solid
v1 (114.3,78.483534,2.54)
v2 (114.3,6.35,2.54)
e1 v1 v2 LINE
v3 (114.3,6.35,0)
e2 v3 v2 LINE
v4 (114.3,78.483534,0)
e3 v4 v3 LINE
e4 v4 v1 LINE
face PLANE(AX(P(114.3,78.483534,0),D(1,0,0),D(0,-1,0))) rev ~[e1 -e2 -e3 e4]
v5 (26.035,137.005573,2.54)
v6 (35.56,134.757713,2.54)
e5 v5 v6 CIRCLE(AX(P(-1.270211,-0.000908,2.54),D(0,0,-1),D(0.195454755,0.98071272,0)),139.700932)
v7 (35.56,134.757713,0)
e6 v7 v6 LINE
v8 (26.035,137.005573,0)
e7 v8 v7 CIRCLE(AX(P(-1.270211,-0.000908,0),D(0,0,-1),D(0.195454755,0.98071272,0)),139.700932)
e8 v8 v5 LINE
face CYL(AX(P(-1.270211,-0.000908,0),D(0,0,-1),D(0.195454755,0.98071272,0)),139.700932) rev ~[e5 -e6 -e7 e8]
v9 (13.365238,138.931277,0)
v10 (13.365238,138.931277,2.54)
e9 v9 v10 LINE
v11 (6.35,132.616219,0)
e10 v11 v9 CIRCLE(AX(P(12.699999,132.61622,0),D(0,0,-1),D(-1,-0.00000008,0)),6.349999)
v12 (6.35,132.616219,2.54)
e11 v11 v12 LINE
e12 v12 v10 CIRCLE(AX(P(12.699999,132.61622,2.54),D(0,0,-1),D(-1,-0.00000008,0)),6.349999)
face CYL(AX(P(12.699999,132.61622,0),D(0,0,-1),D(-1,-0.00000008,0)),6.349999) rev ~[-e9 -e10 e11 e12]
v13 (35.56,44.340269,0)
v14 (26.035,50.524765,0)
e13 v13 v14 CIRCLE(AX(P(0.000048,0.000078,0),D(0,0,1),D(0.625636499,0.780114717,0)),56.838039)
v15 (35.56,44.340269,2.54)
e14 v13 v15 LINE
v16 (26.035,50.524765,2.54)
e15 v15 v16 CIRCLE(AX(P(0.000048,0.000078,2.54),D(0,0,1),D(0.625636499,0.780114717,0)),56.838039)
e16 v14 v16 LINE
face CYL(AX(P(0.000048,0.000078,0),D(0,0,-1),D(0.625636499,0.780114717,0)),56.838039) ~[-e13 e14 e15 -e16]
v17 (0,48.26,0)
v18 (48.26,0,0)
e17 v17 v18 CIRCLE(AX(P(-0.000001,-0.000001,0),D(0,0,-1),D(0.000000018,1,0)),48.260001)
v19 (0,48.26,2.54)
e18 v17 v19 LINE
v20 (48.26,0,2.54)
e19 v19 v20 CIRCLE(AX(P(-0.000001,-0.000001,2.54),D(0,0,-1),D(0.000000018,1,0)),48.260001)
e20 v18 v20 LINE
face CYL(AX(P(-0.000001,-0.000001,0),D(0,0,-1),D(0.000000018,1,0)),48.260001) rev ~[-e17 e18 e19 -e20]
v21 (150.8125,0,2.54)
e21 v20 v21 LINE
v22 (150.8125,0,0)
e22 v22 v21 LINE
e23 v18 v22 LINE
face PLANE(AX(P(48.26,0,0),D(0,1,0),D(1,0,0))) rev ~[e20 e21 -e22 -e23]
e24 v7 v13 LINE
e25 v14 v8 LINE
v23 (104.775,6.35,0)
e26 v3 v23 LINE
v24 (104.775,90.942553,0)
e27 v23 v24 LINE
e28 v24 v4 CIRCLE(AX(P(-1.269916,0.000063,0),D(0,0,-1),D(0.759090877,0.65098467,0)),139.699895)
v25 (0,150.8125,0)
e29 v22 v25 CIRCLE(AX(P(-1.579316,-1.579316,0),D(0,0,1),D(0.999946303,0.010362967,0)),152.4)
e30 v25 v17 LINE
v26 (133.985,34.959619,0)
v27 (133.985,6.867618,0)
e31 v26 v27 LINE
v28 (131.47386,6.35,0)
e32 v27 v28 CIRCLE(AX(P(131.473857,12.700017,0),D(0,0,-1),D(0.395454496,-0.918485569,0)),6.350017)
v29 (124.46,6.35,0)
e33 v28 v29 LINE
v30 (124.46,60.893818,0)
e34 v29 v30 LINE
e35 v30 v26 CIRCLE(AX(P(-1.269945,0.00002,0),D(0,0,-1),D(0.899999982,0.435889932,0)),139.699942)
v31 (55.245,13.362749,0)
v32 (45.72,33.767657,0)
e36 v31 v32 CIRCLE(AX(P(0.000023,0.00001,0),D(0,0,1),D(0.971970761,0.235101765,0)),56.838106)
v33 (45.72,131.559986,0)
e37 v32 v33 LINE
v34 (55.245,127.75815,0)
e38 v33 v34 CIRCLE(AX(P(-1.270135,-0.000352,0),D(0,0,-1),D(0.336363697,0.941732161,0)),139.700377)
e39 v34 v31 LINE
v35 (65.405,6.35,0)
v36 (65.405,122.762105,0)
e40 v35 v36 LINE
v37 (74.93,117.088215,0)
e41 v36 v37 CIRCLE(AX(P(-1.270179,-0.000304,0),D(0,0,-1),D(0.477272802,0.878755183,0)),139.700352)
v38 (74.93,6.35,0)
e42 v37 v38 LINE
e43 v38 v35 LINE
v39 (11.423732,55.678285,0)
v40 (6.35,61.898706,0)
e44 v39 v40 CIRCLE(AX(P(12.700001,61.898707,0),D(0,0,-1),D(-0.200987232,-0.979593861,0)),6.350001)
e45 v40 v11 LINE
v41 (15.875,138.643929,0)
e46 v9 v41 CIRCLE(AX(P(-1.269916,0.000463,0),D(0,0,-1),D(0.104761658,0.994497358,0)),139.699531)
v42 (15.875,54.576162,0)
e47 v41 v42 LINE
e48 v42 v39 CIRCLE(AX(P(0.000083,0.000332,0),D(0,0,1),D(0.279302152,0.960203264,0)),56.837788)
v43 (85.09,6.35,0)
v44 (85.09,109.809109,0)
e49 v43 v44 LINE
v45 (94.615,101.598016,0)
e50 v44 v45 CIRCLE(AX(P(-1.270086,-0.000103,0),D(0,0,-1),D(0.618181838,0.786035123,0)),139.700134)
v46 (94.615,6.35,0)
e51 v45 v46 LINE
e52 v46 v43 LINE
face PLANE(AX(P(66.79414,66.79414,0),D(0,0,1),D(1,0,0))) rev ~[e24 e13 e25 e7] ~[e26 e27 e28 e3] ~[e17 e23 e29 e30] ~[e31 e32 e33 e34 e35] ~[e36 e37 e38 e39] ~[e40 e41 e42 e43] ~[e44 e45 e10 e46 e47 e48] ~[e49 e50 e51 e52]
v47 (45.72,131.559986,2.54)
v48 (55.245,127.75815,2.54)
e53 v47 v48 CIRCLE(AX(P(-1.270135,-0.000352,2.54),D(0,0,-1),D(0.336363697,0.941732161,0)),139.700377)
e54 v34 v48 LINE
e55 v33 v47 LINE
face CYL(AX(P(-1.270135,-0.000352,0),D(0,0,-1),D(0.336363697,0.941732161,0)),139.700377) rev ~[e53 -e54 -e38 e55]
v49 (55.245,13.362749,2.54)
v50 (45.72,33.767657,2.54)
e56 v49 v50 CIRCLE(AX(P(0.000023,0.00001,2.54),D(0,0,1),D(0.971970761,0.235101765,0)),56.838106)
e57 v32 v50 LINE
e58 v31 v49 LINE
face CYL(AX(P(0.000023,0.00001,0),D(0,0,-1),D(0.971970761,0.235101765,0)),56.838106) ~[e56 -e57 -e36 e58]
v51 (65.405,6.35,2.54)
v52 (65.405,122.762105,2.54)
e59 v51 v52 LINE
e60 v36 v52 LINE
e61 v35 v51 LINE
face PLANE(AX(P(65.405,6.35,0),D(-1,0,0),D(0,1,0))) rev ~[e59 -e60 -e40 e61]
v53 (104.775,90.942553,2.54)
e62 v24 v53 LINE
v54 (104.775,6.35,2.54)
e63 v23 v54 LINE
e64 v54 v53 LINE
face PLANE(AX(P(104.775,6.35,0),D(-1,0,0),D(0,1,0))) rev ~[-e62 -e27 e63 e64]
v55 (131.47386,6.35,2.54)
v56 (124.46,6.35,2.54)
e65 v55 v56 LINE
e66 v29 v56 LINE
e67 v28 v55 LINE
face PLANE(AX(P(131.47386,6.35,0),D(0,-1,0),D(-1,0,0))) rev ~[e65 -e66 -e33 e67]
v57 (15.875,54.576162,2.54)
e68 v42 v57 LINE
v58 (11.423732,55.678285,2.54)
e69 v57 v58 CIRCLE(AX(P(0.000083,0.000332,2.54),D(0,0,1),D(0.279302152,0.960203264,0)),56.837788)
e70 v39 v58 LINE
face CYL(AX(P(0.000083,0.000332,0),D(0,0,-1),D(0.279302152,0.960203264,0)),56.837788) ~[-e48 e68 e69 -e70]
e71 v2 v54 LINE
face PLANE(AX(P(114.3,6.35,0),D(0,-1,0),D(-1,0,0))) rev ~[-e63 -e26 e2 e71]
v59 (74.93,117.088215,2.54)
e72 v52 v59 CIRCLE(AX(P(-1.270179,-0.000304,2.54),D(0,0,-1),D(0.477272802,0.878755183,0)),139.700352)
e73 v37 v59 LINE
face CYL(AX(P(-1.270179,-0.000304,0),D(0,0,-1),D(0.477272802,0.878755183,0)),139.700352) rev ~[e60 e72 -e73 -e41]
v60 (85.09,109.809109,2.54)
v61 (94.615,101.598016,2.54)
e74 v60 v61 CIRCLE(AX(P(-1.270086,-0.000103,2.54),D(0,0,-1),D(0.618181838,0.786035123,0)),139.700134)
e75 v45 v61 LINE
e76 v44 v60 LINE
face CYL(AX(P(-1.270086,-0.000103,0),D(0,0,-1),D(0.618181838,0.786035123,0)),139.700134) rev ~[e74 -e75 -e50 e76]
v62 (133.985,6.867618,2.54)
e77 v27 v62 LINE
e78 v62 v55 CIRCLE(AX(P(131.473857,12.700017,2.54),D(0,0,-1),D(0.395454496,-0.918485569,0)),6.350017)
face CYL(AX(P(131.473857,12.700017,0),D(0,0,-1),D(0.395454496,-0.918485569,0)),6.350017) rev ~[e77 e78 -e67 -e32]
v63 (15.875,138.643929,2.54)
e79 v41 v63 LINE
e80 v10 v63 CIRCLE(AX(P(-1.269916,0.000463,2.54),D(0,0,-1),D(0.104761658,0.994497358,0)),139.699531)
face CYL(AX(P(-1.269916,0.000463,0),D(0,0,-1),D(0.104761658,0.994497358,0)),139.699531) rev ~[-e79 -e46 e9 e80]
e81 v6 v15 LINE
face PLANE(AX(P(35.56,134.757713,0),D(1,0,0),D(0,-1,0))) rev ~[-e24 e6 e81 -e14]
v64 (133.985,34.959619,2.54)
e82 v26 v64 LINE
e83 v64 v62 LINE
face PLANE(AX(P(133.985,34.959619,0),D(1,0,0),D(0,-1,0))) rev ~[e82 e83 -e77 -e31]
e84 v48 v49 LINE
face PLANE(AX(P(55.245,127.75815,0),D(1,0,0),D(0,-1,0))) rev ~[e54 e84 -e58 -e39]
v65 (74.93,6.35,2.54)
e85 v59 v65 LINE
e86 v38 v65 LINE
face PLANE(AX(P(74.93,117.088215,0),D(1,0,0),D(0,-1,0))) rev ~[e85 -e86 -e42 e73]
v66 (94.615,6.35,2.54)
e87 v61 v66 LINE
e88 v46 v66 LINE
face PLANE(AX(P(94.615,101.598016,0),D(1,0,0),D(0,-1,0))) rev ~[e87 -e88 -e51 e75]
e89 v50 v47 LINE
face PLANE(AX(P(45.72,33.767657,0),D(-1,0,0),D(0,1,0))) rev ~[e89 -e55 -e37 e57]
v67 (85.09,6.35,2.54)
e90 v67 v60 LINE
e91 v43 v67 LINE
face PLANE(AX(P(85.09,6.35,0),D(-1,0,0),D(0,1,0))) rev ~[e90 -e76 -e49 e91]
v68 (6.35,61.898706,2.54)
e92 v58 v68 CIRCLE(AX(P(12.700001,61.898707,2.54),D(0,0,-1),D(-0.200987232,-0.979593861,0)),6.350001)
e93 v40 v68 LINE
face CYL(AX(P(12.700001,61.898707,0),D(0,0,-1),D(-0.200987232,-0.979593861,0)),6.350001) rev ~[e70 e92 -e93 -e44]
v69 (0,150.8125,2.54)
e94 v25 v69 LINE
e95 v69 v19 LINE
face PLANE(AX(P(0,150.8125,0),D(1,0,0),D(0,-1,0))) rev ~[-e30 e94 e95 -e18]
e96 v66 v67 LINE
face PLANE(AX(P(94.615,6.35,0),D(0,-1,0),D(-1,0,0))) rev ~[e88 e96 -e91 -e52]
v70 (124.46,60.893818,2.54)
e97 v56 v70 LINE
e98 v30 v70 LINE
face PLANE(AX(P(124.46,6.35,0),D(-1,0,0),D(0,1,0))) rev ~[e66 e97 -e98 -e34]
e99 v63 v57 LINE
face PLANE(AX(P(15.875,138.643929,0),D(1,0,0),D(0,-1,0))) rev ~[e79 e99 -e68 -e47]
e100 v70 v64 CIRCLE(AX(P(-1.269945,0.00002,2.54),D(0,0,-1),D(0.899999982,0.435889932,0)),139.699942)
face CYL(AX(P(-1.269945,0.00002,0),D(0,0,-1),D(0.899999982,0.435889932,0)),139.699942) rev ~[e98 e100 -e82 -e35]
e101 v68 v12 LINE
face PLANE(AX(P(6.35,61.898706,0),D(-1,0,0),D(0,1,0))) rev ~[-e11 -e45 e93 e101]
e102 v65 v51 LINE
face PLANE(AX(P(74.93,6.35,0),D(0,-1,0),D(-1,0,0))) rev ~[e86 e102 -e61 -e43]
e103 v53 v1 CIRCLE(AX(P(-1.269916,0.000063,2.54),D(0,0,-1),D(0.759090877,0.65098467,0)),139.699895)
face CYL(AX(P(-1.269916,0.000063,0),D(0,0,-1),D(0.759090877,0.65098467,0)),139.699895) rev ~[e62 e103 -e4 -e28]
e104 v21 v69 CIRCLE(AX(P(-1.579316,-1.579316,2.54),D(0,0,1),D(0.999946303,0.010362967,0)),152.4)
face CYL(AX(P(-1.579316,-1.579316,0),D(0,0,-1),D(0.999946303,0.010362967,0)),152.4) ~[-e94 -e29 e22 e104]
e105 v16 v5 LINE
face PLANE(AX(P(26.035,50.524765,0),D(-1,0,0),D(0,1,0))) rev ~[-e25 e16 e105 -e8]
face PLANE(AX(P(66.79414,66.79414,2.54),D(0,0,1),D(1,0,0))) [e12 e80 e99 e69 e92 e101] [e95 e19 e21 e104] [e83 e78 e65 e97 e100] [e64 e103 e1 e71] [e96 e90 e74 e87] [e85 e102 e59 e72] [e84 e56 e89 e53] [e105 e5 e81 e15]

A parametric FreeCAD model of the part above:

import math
import FreeCAD as App
import Part
import Sketcher

V = App.Vector
Q = App.Units.Quantity

doc = App.newDocument("Part")
body = doc.addObject("PartDesign::Body", "Body")

sketch1 = body.newObject("Sketcher::SketchObject", "Sketch")
sketch1.AttachmentSupport = (doc.getObject("XY_Plane"), [""])
sketch1.MapMode = "FlatFace"
sketch1.addGeometry(Part.ArcOfCircle(Part.Circle(V(-0.000001, -0.000001, 0), V(0, 0, 1), 48.260001), math.radians(0.000001), math.radians(89.999999)), False)
sketch1.addGeometry(Part.LineSegment(V(48.26, 0, 0), V(150.8125, 0, 0)), False)
sketch1.addGeometry(Part.ArcOfCircle(Part.Circle(V(-1.579316, -1.579316, 0), V(0, 0, 1), 152.4), math.radians(0.593765), math.radians(89.406235)), False)
sketch1.addGeometry(Part.LineSegment(V(0, 150.8125, 0), V(0, 48.26, 0)), False)
sketch1.addGeometry(Part.ArcOfCircle(Part.Circle(V(-1.270135, -0.000352, 0), V(0, 0, 1), 139.700377), math.radians(66.137362), math.radians(70.344515)), False)
sketch1.addGeometry(Part.LineSegment(V(55.245, 127.75815, 0), V(55.245, 13.362749, 0)), False)
sketch1.addGeometry(Part.ArcOfCircle(Part.Circle(V(0.000023, 0.00001, 0), V(0, 0, 1), 56.838106), math.radians(13.597622), math.radians(36.44866)), False)
sketch1.addGeometry(Part.LineSegment(V(45.72, 33.767657, 0), V(45.72, 131.559986, 0)), False)
sketch1.addGeometry(Part.LineSegment(V(124.46, 6.35, 0), V(124.46, 60.893818, 0)), False)
sketch1.addGeometry(Part.ArcOfCircle(Part.Circle(V(-1.269945, 0.00002, 0), V(0, 0, 1), 139.699942), math.radians(14.492174), math.radians(25.841935)), False)
sketch1.addGeometry(Part.LineSegment(V(133.985, 34.959619, 0), V(133.985, 6.867618, 0)), False)
sketch1.addGeometry(Part.ArcOfCircle(Part.Circle(V(131.473857, 12.700017, 0), V(0, 0, 1), 6.350017), math.radians(-89.999976), math.radians(-66.705677)), False)
sketch1.addGeometry(Part.LineSegment(V(131.47386, 6.35, 0), V(124.46, 6.35, 0)), False)
sketch1.addGeometry(Part.LineSegment(V(74.93, 117.088215, 0), V(74.93, 6.35, 0)), False)
sketch1.addGeometry(Part.LineSegment(V(74.93, 6.35, 0), V(65.405, 6.35, 0)), False)
sketch1.addGeometry(Part.LineSegment(V(65.405, 6.35, 0), V(65.405, 122.762105, 0)), False)
sketch1.addGeometry(Part.ArcOfCircle(Part.Circle(V(-1.270179, -0.000304, 0), V(0, 0, 1), 139.700352), math.radians(56.944275), math.radians(61.492565)), False)
sketch1.addGeometry(Part.LineSegment(V(94.615, 101.598016, 0), V(94.615, 6.35, 0)), False)
sketch1.addGeometry(Part.LineSegment(V(94.615, 6.35, 0), V(85.09, 6.35, 0)), False)
sketch1.addGeometry(Part.LineSegment(V(85.09, 6.35, 0), V(85.09, 109.809109, 0)), False)
sketch1.addGeometry(Part.ArcOfCircle(Part.Circle(V(-1.270086, -0.000103, 0), V(0, 0, 1), 139.700134), math.radians(46.65706), math.radians(51.816516)), False)
sketch1.addGeometry(Part.LineSegment(V(114.3, 6.35, 0), V(104.775, 6.35, 0)), False)
sketch1.addGeometry(Part.LineSegment(V(104.775, 6.35, 0), V(104.775, 90.942553, 0)), False)
sketch1.addGeometry(Part.ArcOfCircle(Part.Circle(V(-1.269916, 0.000063, 0), V(0, 0, 1), 139.699895), math.radians(34.180406), math.radians(40.615883)), False)
sketch1.addGeometry(Part.LineSegment(V(114.3, 78.483534, 0), V(114.3, 6.35, 0)), False)
sketch1.addGeometry(Part.ArcOfCircle(Part.Circle(V(0.000083, 0.000332, 0), V(0, 0, 1), 56.837788), math.radians(73.781441), math.radians(78.405326)), False)
sketch1.addGeometry(Part.ArcOfCircle(Part.Circle(V(12.700001, 61.898707, 0), V(0, 0, 1), 6.350001), math.radians(-179.99999), math.radians(-101.594696)), False)
sketch1.addGeometry(Part.LineSegment(V(6.35, 61.898706, 0), V(6.35, 132.616219, 0)), False)
sketch1.addGeometry(Part.ArcOfCircle(Part.Circle(V(12.699999, 132.61622, 0), V(0, 0, 1), 6.349999), math.radians(83.986547), math.radians(180.000005)), False)
sketch1.addGeometry(Part.ArcOfCircle(Part.Circle(V(-1.269916, 0.000463, 0), V(0, 0, 1), 139.699531), math.radians(82.950483), math.radians(83.986565)), False)
sketch1.addGeometry(Part.LineSegment(V(15.875, 138.643929, 0), V(15.875, 54.576162, 0)), False)
sketch1.addGeometry(Part.LineSegment(V(35.56, 134.757713, 0), V(35.56, 44.340269, 0)), False)
sketch1.addGeometry(Part.ArcOfCircle(Part.Circle(V(0.000048, 0.000078, 0), V(0, 0, 1), 56.838039), math.radians(51.27108), math.radians(62.738325)), False)
sketch1.addGeometry(Part.LineSegment(V(26.035, 50.524765, 0), V(26.035, 137.005573, 0)), False)
sketch1.addGeometry(Part.ArcOfCircle(Part.Circle(V(-1.270211, -0.000908, 0), V(0, 0, 1), 139.700932), math.radians(74.714074), math.radians(78.72871)), False)
sketch1.addConstraint(Sketcher.Constraint("Coincident", 0, 1, 1, 1))
sketch1.addConstraint(Sketcher.Constraint("Coincident", 1, 2, 2, 1))
sketch1.addConstraint(Sketcher.Constraint("Coincident", 2, 2, 3, 1))
sketch1.addConstraint(Sketcher.Constraint("Coincident", 3, 2, 0, 2))
sketch1.addConstraint(Sketcher.Constraint("Coincident", 4, 1, 5, 1))
sketch1.addConstraint(Sketcher.Constraint("Coincident", 5, 2, 6, 1))
sketch1.addConstraint(Sketcher.Constraint("Coincident", 6, 2, 7, 1))
sketch1.addConstraint(Sketcher.Constraint("Coincident", 7, 2, 4, 2))
sketch1.addConstraint(Sketcher.Constraint("Coincident", 8, 2, 9, 2))
sketch1.addConstraint(Sketcher.Constraint("Coincident", 9, 1, 10, 1))
sketch1.addConstraint(Sketcher.Constraint("Coincident", 10, 2, 11, 2))
sketch1.addConstraint(Sketcher.Constraint("Tangent", 11, 1, 12, 1))
sketch1.addConstraint(Sketcher.Constraint("Coincident", 12, 2, 8, 1))
sketch1.addConstraint(Sketcher.Constraint("Coincident", 13, 2, 14, 1))
sketch1.addConstraint(Sketcher.Constraint("Coincident", 14, 2, 15, 1))
sketch1.addConstraint(Sketcher.Constraint("Coincident", 15, 2, 16, 2))
sketch1.addConstraint(Sketcher.Constraint("Coincident", 16, 1, 13, 1))
sketch1.addConstraint(Sketcher.Constraint("Coincident", 17, 2, 18, 1))
sketch1.addConstraint(Sketcher.Constraint("Coincident", 18, 2, 19, 1))
sketch1.addConstraint(Sketcher.Constraint("Coincident", 19, 2, 20, 2))
sketch1.addConstraint(Sketcher.Constraint("Coincident", 20, 1, 17, 1))
sketch1.addConstraint(Sketcher.Constraint("Coincident", 21, 2, 22, 1))
sketch1.addConstraint(Sketcher.Constraint("Coincident", 22, 2, 23, 2))
sketch1.addConstraint(Sketcher.Constraint("Coincident", 23, 1, 24, 1))
sketch1.addConstraint(Sketcher.Constraint("Coincident", 24, 2, 21, 1))
sketch1.addConstraint(Sketcher.Constraint("Tangent", 25, 2, 26, 2))
sketch1.addConstraint(Sketcher.Constraint("Tangent", 26, 1, 27, 1))
sketch1.addConstraint(Sketcher.Constraint("Tangent", 27, 2, 28, 2))
sketch1.addConstraint(Sketcher.Constraint("Tangent", 28, 1, 29, 2))
sketch1.addConstraint(Sketcher.Constraint("Coincident", 29, 1, 30, 1))
sketch1.addConstraint(Sketcher.Constraint("Coincident", 30, 2, 25, 1))
sketch1.addConstraint(Sketcher.Constraint("Coincident", 31, 2, 32, 1))
sketch1.addConstraint(Sketcher.Constraint("Coincident", 32, 2, 33, 1))
sketch1.addConstraint(Sketcher.Constraint("Coincident", 33, 2, 34, 2))
sketch1.addConstraint(Sketcher.Constraint("Coincident", 34, 1, 31, 1))
sketch1.addConstraint(Sketcher.Constraint("Horizontal", 1))
sketch1.addConstraint(Sketcher.Constraint("Vertical", 3))
sketch1.addConstraint(Sketcher.Constraint("Vertical", 5))
sketch1.addConstraint(Sketcher.Constraint("Vertical", 7))
sketch1.addConstraint(Sketcher.Constraint("Vertical", 8))
sketch1.addConstraint(Sketcher.Constraint("Vertical", 10))
sketch1.addConstraint(Sketcher.Constraint("Horizontal", 12))
sketch1.addConstraint(Sketcher.Constraint("Vertical", 13))
sketch1.addConstraint(Sketcher.Constraint("Horizontal", 14))
sketch1.addConstraint(Sketcher.Constraint("Vertical", 15))
sketch1.addConstraint(Sketcher.Constraint("Vertical", 17))
sketch1.addConstraint(Sketcher.Constraint("Horizontal", 18))
sketch1.addConstraint(Sketcher.Constraint("Vertical", 19))
sketch1.addConstraint(Sketcher.Constraint("Horizontal", 21))
sketch1.addConstraint(Sketcher.Constraint("Vertical", 22))
sketch1.addConstraint(Sketcher.Constraint("Vertical", 24))
sketch1.addConstraint(Sketcher.Constraint("Vertical", 27))
sketch1.addConstraint(Sketcher.Constraint("Vertical", 30))
sketch1.addConstraint(Sketcher.Constraint("Vertical", 31))
sketch1.addConstraint(Sketcher.Constraint("Vertical", 33))
sketch1.addConstraint(Sketcher.Constraint("Coincident", 0, 3, -1, 1))
sketch1.addConstraint(Sketcher.Constraint("Equal", 26, 28))
sketch1.addConstraint(Sketcher.Constraint("PointOnObject", 0, 1, -1))
sketch1.addConstraint(Sketcher.Constraint("PointOnObject", 2, 2, -2))
sketch1.addConstraint(Sketcher.Constraint("Horizontal", 12, 2, 13, 2))
sketch1.addConstraint(Sketcher.Constraint("Horizontal", 14, 2, 17, 2))
sketch1.addConstraint(Sketcher.Constraint("Horizontal", 18, 2, 21, 2))
sketch1.addConstraint(Sketcher.Constraint("Vertical", 23, 3, 29, 3))
sketch1.addConstraint(Sketcher.Constraint("Equal", 14, 18))
sketch1.addConstraint(Sketcher.Constraint("Equal", 18, 21))
sketch1.addConstraint(Sketcher.Constraint("Equal", 1, 3))
sketch1.addConstraint(Sketcher.Constraint("Radius", 2, Q("6 in")))
sketch1.addConstraint(Sketcher.Constraint("Radius", 0, Q("1.9 in")))
sketch1.addConstraint(Sketcher.Constraint("Radius", 26, Q("0.25 in")))
sketch1.addConstraint(Sketcher.Constraint("DistanceX", -1, 1, 26, 3, Q("0.5 in")))
sketch1.addConstraint(Sketcher.Constraint("DistanceX", -1, 1, 6, 2, Q("1.8 in")))
sketch1.addConstraint(Sketcher.Constraint("DistanceX", -1, 1, 8, 2, Q("4.9 in")))
sketch1.addConstraint(Sketcher.Constraint("DistanceX", -1, 1, 23, 1, Q("4.5 in")))
sketch1.addConstraint(Sketcher.Constraint("DistanceX", -1, 1, 31, 2, Q("1.4 in")))
sketch1.addConstraint(Sketcher.Constraint("DistanceY", 9, 3, 11, 3, Q("0.4999999 in")))
sketch1.addConstraint(Sketcher.Constraint("DistanceX", 5, 2, 9, 1, Q("3.1 in")))
sketch1.addConstraint(Sketcher.Constraint("DistanceX", 5, 2, 14, 2, Q("0.4 in")))
sketch1.addConstraint(Sketcher.Constraint("DistanceX", 13, 2, 18, 2, Q("0.4 in")))
sketch1.addConstraint(Sketcher.Constraint("DistanceX", 17, 2, 21, 2, Q("0.4 in")))
sketch1.addConstraint(Sketcher.Constraint("DistanceX", 30, 2, 32, 2, Q("0.4 in")))
sketch1.addConstraint(Sketcher.Constraint("DistanceX", 14, 2, 14, 1, Q("0.375 in")))
sketch1.addConstraint(Sketcher.Constraint("DistanceY", -1, 1, 11, 1, Q("0.25 in")))
sketch1.addConstraint(Sketcher.Constraint("DistanceX", 23, 3, 25, 3, Q("0.05 in")))
sketch1.addConstraint(Sketcher.Constraint("DistanceX", 1, 1, 1, 2, Q("4.0375 in")))
sketch1.addConstraint(Sketcher.Constraint("DistanceX", -1, 1, 29, 1, Q("0.625 in")))
sketch1.addConstraint(Sketcher.Constraint("Radius", 9, 139.699942))
sketch1.addConstraint(Sketcher.Constraint("Radius", 25, 56.837788))
sketch1.addConstraint(Sketcher.Constraint("Radius", 29, 139.699531))
sketch1.addConstraint(Sketcher.Constraint("Radius", 32, 56.838039))
sketch1.addConstraint(Sketcher.Constraint("Radius", 34, 139.700932))
sketch1.addConstraint(Sketcher.Constraint("DistanceY", 5, 2, 5, 1, 114.395401))
sketch1.addConstraint(Sketcher.Constraint("DistanceY", 10, 2, 10, 1, 28.092001))
sketch1.addConstraint(Sketcher.Constraint("Radius", 4, 139.700377))
sketch1.addConstraint(Sketcher.Constraint("Radius", 6, 56.838106))
sketch1.addConstraint(Sketcher.Constraint("Radius", 11, 6.350017))
sketch1.addConstraint(Sketcher.Constraint("Radius", 16, 139.700352))
sketch1.addConstraint(Sketcher.Constraint("Radius", 20, 139.700134))
sketch1.addConstraint(Sketcher.Constraint("Radius", 23, 139.699895))
sketch1.addConstraint(Sketcher.Constraint("DistanceX", 12, 2, 12, 1, 7.01386))
sketch1.addConstraint(Sketcher.Constraint("DistanceY", 7, 1, 7, 2, 97.792329))
sketch1.addConstraint(Sketcher.Constraint("DistanceY", 19, 1, 19, 2, 103.459109))
sketch1.addConstraint(Sketcher.Constraint("DistanceX", 16, 3, 6, 3, 1.270201))
sketch1.addConstraint(Sketcher.Constraint("DistanceY", 16, 3, 20, 3, 0.000201))
sketch1.addConstraint(Sketcher.Constraint("DistanceY", 23, 3, 29, 3, 0.0004))
sketch1.addConstraint(Sketcher.Constraint("DistanceY", 20, 1, 16, 1, 15.490199))
sketch1.addConstraint(Sketcher.Constraint("DistanceY", 13, 2, 13, 1, 110.738215))
sketch1.addConstraint(Sketcher.Constraint("DistanceY", 22, 1, 22, 2, 84.592553))
sketch1.addConstraint(Sketcher.Constraint("DistanceY", 24, 2, 24, 1, 72.133534))
sketch1.addConstraint(Sketcher.Constraint("DistanceY", 27, 1, 27, 2, 70.717513))
sketch1.addConstraint(Sketcher.Constraint("DistanceY", 31, 2, 31, 1, 90.417444))
sketch1.addConstraint(Sketcher.Constraint("DistanceY", 33, 1, 33, 2, 86.480808))
sketch1.addConstraint(Sketcher.Constraint("DistanceY", 4, 3, -1, 1, 0.000352))
sketch1.addConstraint(Sketcher.Constraint("DistanceX", 34, 3, -1, 1, 1.270211))
sketch1.addConstraint(Sketcher.Constraint("DistanceY", -1, 1, 31, 2, 44.340269))
pad1 = body.newObject("PartDesign::Pad", "Pad")
pad1.Profile = sketch1
pad1.Length = Q("0.1 in")

doc.recompute()
